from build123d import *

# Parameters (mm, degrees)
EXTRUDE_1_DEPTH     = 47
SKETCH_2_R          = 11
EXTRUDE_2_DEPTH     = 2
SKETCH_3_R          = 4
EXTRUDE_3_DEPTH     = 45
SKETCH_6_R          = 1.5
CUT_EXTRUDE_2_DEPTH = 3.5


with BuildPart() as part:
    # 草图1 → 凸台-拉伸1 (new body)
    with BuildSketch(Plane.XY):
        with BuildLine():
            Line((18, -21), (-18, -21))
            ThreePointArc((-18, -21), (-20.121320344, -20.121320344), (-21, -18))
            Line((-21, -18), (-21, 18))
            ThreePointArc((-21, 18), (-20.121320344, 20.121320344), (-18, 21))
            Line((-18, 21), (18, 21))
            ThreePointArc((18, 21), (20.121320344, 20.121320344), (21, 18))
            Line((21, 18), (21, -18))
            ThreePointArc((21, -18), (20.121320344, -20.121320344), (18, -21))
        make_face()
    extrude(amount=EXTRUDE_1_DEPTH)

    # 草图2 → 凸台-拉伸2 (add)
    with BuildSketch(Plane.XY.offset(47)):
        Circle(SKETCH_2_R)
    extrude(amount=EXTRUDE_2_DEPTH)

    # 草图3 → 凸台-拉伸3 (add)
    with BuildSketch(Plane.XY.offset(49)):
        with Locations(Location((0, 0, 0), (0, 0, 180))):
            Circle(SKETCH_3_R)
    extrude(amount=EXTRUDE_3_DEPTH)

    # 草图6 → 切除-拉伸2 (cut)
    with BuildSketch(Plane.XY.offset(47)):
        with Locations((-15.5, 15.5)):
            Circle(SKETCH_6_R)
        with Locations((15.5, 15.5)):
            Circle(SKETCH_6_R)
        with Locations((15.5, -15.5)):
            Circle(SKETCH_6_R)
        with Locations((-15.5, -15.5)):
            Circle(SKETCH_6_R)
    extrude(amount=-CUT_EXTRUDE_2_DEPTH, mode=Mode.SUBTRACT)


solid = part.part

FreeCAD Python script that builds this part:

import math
import FreeCAD as App
import Part
import Sketcher

V = App.Vector
Q = App.Units.Quantity

doc = App.newDocument("Part")
body = doc.addObject("PartDesign::Body", "Body")

# Sketch on XY plane
sketch1 = doc.addObject("Sketcher::SketchObject", "Sketch")
body.addObject(sketch1)
sketch1.AttachmentSupport = (doc.XY_Plane, [""])
sketch1.MapMode = "FlatFace"
sketch1.addGeometry(Part.LineSegment(V(-18, -21, 0), V(18, -21, 0)), False)
sketch1.addGeometry(Part.ArcOfCircle(Part.Circle(V(18, -18, 0), V(0, 0, 1), 3), math.radians(-90), math.radians(0)), False)
sketch1.addGeometry(Part.LineSegment(V(21, -18, 0), V(21, 18, 0)), False)
sketch1.addGeometry(Part.ArcOfCircle(Part.Circle(V(18, 18, 0), V(0, 0, 1), 3), math.radians(0), math.radians(90)), False)
sketch1.addGeometry(Part.LineSegment(V(18, 21, 0), V(-18, 21, 0)), False)
sketch1.addGeometry(Part.ArcOfCircle(Part.Circle(V(-18, 18, 0), V(0, 0, 1), 3), math.radians(90), math.radians(180)), False)
sketch1.addGeometry(Part.LineSegment(V(-21, 18, 0), V(-21, -18, 0)), False)
sketch1.addGeometry(Part.ArcOfCircle(Part.Circle(V(-18, -18, 0), V(0, 0, 1), 3), math.radians(180), math.radians(270)), False)
sketch1.addConstraint(Sketcher.Constraint("Tangent", 0, 2, 1, 1))
sketch1.addConstraint(Sketcher.Constraint("Tangent", 1, 2, 2, 1))
sketch1.addConstraint(Sketcher.Constraint("Tangent", 2, 2, 3, 1))
sketch1.addConstraint(Sketcher.Constraint("Tangent", 3, 2, 4, 1))
sketch1.addConstraint(Sketcher.Constraint("Tangent", 4, 2, 5, 1))
sketch1.addConstraint(Sketcher.Constraint("Tangent", 5, 2, 6, 1))
sketch1.addConstraint(Sketcher.Constraint("Tangent", 6, 2, 7, 1))
sketch1.addConstraint(Sketcher.Constraint("Tangent", 7, 2, 0, 1))
sketch1.addConstraint(Sketcher.Constraint("Horizontal", 0))
sketch1.addConstraint(Sketcher.Constraint("Vertical", 2))
sketch1.addConstraint(Sketcher.Constraint("Horizontal", 4))
sketch1.addConstraint(Sketcher.Constraint("Vertical", 6))
sketch1.addConstraint(Sketcher.Constraint("Equal", 1, 3))
sketch1.addConstraint(Sketcher.Constraint("Equal", 3, 5))
sketch1.addConstraint(Sketcher.Constraint("Equal", 5, 7))
sketch1.addConstraint(Sketcher.Constraint("Symmetric", 1, 3, 5, 3, -1, 1))
sketch1.addConstraint(Sketcher.Constraint("Equal", 4, 2))
sketch1.addConstraint(Sketcher.Constraint("Radius", 1, Q("3 mm")))
sketch1.addConstraint(Sketcher.Constraint("DistanceX", 0, 1, 0, 2, Q("36 mm")))
pad1 = doc.addObject("PartDesign::Pad", "Pad")
body.addObject(pad1)
pad1.Profile = sketch1
pad1.Length = 47

# Sketch on XY plane
sketch2 = doc.addObject("Sketcher::SketchObject", "Sketch001")
body.addObject(sketch2)
sketch2.AttachmentSupport = (doc.XY_Plane, [""])
sketch2.MapMode = "FlatFace"
sketch2.AttachmentOffset = App.Placement(V(0, 0, 47), App.Rotation())
sketch2.addGeometry(Part.Circle(V(0, 0, 0), V(0, 0, 1), 11), False)
sketch2.addConstraint(Sketcher.Constraint("Coincident", 0, 3, -1, 1))
sketch2.addConstraint(Sketcher.Constraint("Diameter", 0, Q("22 mm")))
pad2 = doc.addObject("PartDesign::Pad", "Pad001")
body.addObject(pad2)
pad2.Profile = sketch2
pad2.Length = 2

# Sketch on XY plane
sketch3 = doc.addObject("Sketcher::SketchObject", "Sketch002")
body.addObject(sketch3)
sketch3.AttachmentSupport = (doc.XY_Plane, [""])
sketch3.MapMode = "FlatFace"
sketch3.AttachmentOffset = App.Placement(V(0, 0, 49), App.Rotation())
sketch3.addGeometry(Part.Circle(V(0, 0, 0), V(0, 0, 1), 4), False)
sketch3.addConstraint(Sketcher.Constraint("Coincident", 0, 3, -1, 1))
sketch3.addConstraint(Sketcher.Constraint("Diameter", 0, Q("8 mm")))
pad3 = doc.addObject("PartDesign::Pad", "Pad002")
body.addObject(pad3)
pad3.Profile = sketch3
pad3.Length = 45

# Sketch on XY plane
sketch4 = doc.addObject("Sketcher::SketchObject", "Sketch003")
body.addObject(sketch4)
sketch4.AttachmentSupport = (doc.XY_Plane, [""])
sketch4.MapMode = "FlatFace"
sketch4.AttachmentOffset = App.Placement(V(0, 0, 47), App.Rotation())
sketch4.addGeometry(Part.Circle(V(-15.5, 15.5, 0), V(0, 0, 1), 1.5), False)
sketch4.addGeometry(Part.Circle(V(15.5, 15.5, 0), V(0, 0, 1), 1.5), False)
sketch4.addGeometry(Part.Circle(V(15.5, -15.5, 0), V(0, 0, 1), 1.5), False)
sketch4.addGeometry(Part.Circle(V(-15.5, -15.5, 0), V(0, 0, 1), 1.5), False)
sketch4.addConstraint(Sketcher.Constraint("Equal", 0, 1))
sketch4.addConstraint(Sketcher.Constraint("Equal", 1, 2))
sketch4.addConstraint(Sketcher.Constraint("Equal", 2, 3))
sketch4.addConstraint(Sketcher.Constraint("Symmetric", 0, 3, 2, 3, -1, 1))
sketch4.addConstraint(Sketcher.Constraint("Symmetric", 1, 3, 3, 3, -1, 1))
sketch4.addConstraint(Sketcher.Constraint("Symmetric", 0, 3, 1, 3, -2))
sketch4.addConstraint(Sketcher.Constraint("Diameter", 0, Q("3 mm")))
sketch4.addConstraint(Sketcher.Constraint("DistanceX", 0, 3, 1, 3, Q("31 mm")))
sketch4.addConstraint(Sketcher.Constraint("DistanceY", 2, 3, 1, 3, Q("31 mm")))
pocket1 = doc.addObject("PartDesign::Pocket", "Pocket")
body.addObject(pocket1)
pocket1.Profile = sketch4
pocket1.Length = 3.5

doc.recompute()
